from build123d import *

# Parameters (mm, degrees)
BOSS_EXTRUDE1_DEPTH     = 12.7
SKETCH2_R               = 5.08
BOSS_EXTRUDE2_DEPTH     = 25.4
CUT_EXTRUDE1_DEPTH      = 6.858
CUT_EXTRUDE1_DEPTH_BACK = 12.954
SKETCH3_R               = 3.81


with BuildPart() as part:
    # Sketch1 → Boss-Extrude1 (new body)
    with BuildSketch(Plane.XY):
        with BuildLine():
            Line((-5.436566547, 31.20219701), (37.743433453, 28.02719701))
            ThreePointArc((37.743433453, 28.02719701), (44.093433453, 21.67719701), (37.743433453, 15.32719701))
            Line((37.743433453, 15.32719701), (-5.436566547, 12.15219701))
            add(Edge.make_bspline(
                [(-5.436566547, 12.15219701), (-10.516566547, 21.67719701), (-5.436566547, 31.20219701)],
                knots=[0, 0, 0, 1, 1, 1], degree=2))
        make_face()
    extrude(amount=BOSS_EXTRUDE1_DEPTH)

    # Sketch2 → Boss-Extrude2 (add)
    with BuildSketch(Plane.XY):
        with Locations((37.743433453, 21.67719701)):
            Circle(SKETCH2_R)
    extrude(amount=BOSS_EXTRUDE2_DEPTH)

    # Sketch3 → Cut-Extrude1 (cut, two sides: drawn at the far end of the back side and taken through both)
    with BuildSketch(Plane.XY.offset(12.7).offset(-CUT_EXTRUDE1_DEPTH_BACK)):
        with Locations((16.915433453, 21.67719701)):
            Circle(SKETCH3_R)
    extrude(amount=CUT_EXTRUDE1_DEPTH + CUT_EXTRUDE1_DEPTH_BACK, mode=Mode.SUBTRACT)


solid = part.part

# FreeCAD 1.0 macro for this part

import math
import FreeCAD as App
import Part
import Sketcher

V = App.Vector
Q = App.Units.Quantity

doc = App.newDocument("Part")
body = doc.addObject("PartDesign::Body", "Body")

sketch1 = body.newObject("Sketcher::SketchObject", "Sketch")
sketch1.AttachmentSupport = (doc.getObject("XY_Plane"), [""])
sketch1.MapMode = "FlatFace"
sketch1.addGeometry(Part.LineSegment(V(37.743433, 28.027197, 0), V(-5.436567, 31.202197, 0)), False)
sketch1.addGeometry(Part.BSplineCurve([V(-5.436567, 12.152197, 0), V(-10.516567, 21.677197, 0), V(-5.436567, 31.202197, 0)], [3, 3], [0, 1], False, 2, [1, 1, 1], False), False)
sketch1.addGeometry(Part.LineSegment(V(-5.436567, 12.152197, 0), V(37.743433, 15.327197, 0)), False)
sketch1.addGeometry(Part.ArcOfCircle(Part.Circle(V(37.743433, 21.677197, 0), V(0, 0, 1), 6.35), math.radians(-90), math.radians(90)), False)
sketch1.addConstraint(Sketcher.Constraint("Block", 1))
sketch1.addConstraint(Sketcher.Constraint("Coincident", 0, 2, 1, 2))
sketch1.addConstraint(Sketcher.Constraint("Coincident", 1, 1, 2, 1))
sketch1.addConstraint(Sketcher.Constraint("Coincident", 2, 2, 3, 1))
sketch1.addConstraint(Sketcher.Constraint("Coincident", 3, 2, 0, 1))
sketch1.addConstraint(Sketcher.Constraint("Vertical", 3, 3, 2, 2))
sketch1.addConstraint(Sketcher.Constraint("Vertical", 2, 2, 3, 2))
sketch1.addConstraint(Sketcher.Constraint("Equal", 0, 2))
sketch1.addConstraint(Sketcher.Constraint("Radius", 3, Q("0.25 in")))
sketch1.addConstraint(Sketcher.Constraint("DistanceX", 0, 2, 3, 3, Q("1.7 in")))
pad1 = body.newObject("PartDesign::Pad", "Pad")
pad1.Profile = sketch1
pad1.Length = Q("0.5 in")

sketch2 = body.newObject("Sketcher::SketchObject", "Sketch001")
sketch2.AttachmentSupport = (doc.getObject("XY_Plane"), [""])
sketch2.MapMode = "FlatFace"
sketch2.addGeometry(Part.Circle(V(38, 22, 0), V(0, 0, 1), 5), False)
sketch2.addConstraint(Sketcher.Constraint("Diameter", 0, Q("0.4 in")))
sketch2.addConstraint(Sketcher.Constraint("DistanceX", -1, 1, 0, 3, Q("37.743433 mm")))
sketch2.addConstraint(Sketcher.Constraint("DistanceY", -1, 1, 0, 3, Q("21.677197 mm")))
pad2 = body.newObject("PartDesign::Pad", "Pad001")
pad2.Profile = sketch2
pad2.Length = Q("1 in")

sketch3 = body.newObject("Sketcher::SketchObject", "Sketch002")
sketch3.AttachmentSupport = (doc.getObject("XY_Plane"), [""])
sketch3.MapMode = "FlatFace"
sketch3.AttachmentOffset = App.Placement(V(0, 0, 0.5 * 25.4), App.Rotation())
sketch3.addGeometry(Part.Circle(V(16.9, 21.7, 0), V(0, 0, 1), 3.8), False)
sketch3.addConstraint(Sketcher.Constraint("Diameter", 0, Q("0.3 in")))
sketch3.addConstraint(Sketcher.Constraint("DistanceX", -1, 1, 0, 3, Q("16.915433 mm")))
sketch3.addConstraint(Sketcher.Constraint("DistanceY", -1, 1, 0, 3, Q("21.677197 mm")))
pocket1 = body.newObject("PartDesign::Pocket", "Pocket")
pocket1.Profile = sketch3
pocket1.Type = "ThroughAll"
pocket1.Midplane = True

doc.recompute()
